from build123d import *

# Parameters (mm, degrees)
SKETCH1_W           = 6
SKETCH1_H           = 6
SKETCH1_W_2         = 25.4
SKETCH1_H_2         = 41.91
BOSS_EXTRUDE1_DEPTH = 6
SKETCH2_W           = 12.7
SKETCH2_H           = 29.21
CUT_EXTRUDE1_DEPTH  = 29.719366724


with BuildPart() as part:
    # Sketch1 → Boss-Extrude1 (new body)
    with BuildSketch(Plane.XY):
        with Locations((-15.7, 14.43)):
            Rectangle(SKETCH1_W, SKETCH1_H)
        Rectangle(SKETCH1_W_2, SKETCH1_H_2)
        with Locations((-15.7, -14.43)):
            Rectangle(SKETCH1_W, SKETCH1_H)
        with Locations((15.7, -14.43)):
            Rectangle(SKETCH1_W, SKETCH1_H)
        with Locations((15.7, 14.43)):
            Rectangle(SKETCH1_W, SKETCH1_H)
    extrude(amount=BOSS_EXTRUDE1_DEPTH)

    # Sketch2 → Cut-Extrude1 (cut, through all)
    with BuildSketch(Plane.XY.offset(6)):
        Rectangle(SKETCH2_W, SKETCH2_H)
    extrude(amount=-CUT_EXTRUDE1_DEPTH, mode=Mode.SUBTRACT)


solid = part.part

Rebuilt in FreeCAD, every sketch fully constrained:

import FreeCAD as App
import Part
import Sketcher

V = App.Vector
Q = App.Units.Quantity

doc = App.newDocument("Part")
params = doc.addObject("Spreadsheet::Sheet", "Params")
for row, (alias, value) in enumerate([
    ("sketch1_width", "1 in"),
    ("sketch1_height", "0.9 in"),
    ("pad1_length", "6 mm"),
    ("sketch2_width", "0.5 in"),
    ("sketch2_height", "1.15 in"),
], start=1):
    params.set(f"A{row}", alias)
    params.set(f"B{row}", "=" + value)
    params.setAlias(f"B{row}", alias)

body = doc.addObject("PartDesign::Body", "Body")

# Sketch on XY plane
sketch1 = body.newObject("Sketcher::SketchObject", "Sketch")
sketch1.AttachmentSupport = (doc.getObject("XY_Plane"), [""])
sketch1.MapMode = "FlatFace"
sketch1.addGeometry(Part.LineSegment(V(-18.7, 17.43, 0), V(-18.7, 11.43, 0)), False)
sketch1.addGeometry(Part.LineSegment(V(-18.7, 11.43, 0), V(-12.7, 11.43, 0)), False)
sketch1.addGeometry(Part.LineSegment(V(-12.7, 11.43, 0), V(-12.7, -11.43, 0)), False)
sketch1.addGeometry(Part.LineSegment(V(-12.7, -11.43, 0), V(-18.7, -11.43, 0)), False)
sketch1.addGeometry(Part.LineSegment(V(-18.7, -11.43, 0), V(-18.7, -17.43, 0)), False)
sketch1.addGeometry(Part.LineSegment(V(-18.7, -17.43, 0), V(-12.7, -17.43, 0)), False)
sketch1.addGeometry(Part.LineSegment(V(-12.7, -17.43, 0), V(-12.7, -20.955, 0)), False)
sketch1.addGeometry(Part.LineSegment(V(-12.7, -20.955, 0), V(12.7, -20.955, 0)), False)
sketch1.addGeometry(Part.LineSegment(V(12.7, -20.955, 0), V(12.7, -17.43, 0)), False)
sketch1.addGeometry(Part.LineSegment(V(12.7, -17.43, 0), V(18.7, -17.43, 0)), False)
sketch1.addGeometry(Part.LineSegment(V(18.7, -17.43, 0), V(18.7, -11.43, 0)), False)
sketch1.addGeometry(Part.LineSegment(V(18.7, -11.43, 0), V(12.7, -11.43, 0)), False)
sketch1.addGeometry(Part.LineSegment(V(12.7, -11.43, 0), V(12.7, 11.43, 0)), False)
sketch1.addGeometry(Part.LineSegment(V(12.7, 11.43, 0), V(18.7, 11.43, 0)), False)
sketch1.addGeometry(Part.LineSegment(V(18.7, 11.43, 0), V(18.7, 17.43, 0)), False)
sketch1.addGeometry(Part.LineSegment(V(18.7, 17.43, 0), V(12.7, 17.43, 0)), False)
sketch1.addGeometry(Part.LineSegment(V(12.7, 17.43, 0), V(12.7, 20.955, 0)), False)
sketch1.addGeometry(Part.LineSegment(V(12.7, 20.955, 0), V(-12.7, 20.955, 0)), False)
sketch1.addGeometry(Part.LineSegment(V(-12.7, 20.955, 0), V(-12.7, 17.43, 0)), False)
sketch1.addGeometry(Part.LineSegment(V(-12.7, 17.43, 0), V(-18.7, 17.43, 0)), False)
sketch1.addConstraint(Sketcher.Constraint("Coincident", 0, 2, 1, 1))
sketch1.addConstraint(Sketcher.Constraint("Coincident", 1, 2, 2, 1))
sketch1.addConstraint(Sketcher.Constraint("Coincident", 2, 2, 3, 1))
sketch1.addConstraint(Sketcher.Constraint("Coincident", 3, 2, 4, 1))
sketch1.addConstraint(Sketcher.Constraint("Coincident", 4, 2, 5, 1))
sketch1.addConstraint(Sketcher.Constraint("Coincident", 5, 2, 6, 1))
sketch1.addConstraint(Sketcher.Constraint("Coincident", 6, 2, 7, 1))
sketch1.addConstraint(Sketcher.Constraint("Coincident", 7, 2, 8, 1))
sketch1.addConstraint(Sketcher.Constraint("Coincident", 8, 2, 9, 1))
sketch1.addConstraint(Sketcher.Constraint("Coincident", 9, 2, 10, 1))
sketch1.addConstraint(Sketcher.Constraint("Coincident", 10, 2, 11, 1))
sketch1.addConstraint(Sketcher.Constraint("Coincident", 11, 2, 12, 1))
sketch1.addConstraint(Sketcher.Constraint("Coincident", 12, 2, 13, 1))
sketch1.addConstraint(Sketcher.Constraint("Coincident", 13, 2, 14, 1))
sketch1.addConstraint(Sketcher.Constraint("Coincident", 14, 2, 15, 1))
sketch1.addConstraint(Sketcher.Constraint("Coincident", 15, 2, 16, 1))
sketch1.addConstraint(Sketcher.Constraint("Coincident", 16, 2, 17, 1))
sketch1.addConstraint(Sketcher.Constraint("Coincident", 17, 2, 18, 1))
sketch1.addConstraint(Sketcher.Constraint("Coincident", 18, 2, 19, 1))
sketch1.addConstraint(Sketcher.Constraint("Coincident", 19, 2, 0, 1))
sketch1.addConstraint(Sketcher.Constraint("Vertical", 0))
sketch1.addConstraint(Sketcher.Constraint("Horizontal", 1))
sketch1.addConstraint(Sketcher.Constraint("Vertical", 2))
sketch1.addConstraint(Sketcher.Constraint("Horizontal", 3))
sketch1.addConstraint(Sketcher.Constraint("Vertical", 4))
sketch1.addConstraint(Sketcher.Constraint("Horizontal", 5))
sketch1.addConstraint(Sketcher.Constraint("Vertical", 6))
sketch1.addConstraint(Sketcher.Constraint("Horizontal", 7))
sketch1.addConstraint(Sketcher.Constraint("Vertical", 8))
sketch1.addConstraint(Sketcher.Constraint("Horizontal", 9))
sketch1.addConstraint(Sketcher.Constraint("Vertical", 10))
sketch1.addConstraint(Sketcher.Constraint("Horizontal", 11))
sketch1.addConstraint(Sketcher.Constraint("Vertical", 12))
sketch1.addConstraint(Sketcher.Constraint("Horizontal", 13))
sketch1.addConstraint(Sketcher.Constraint("Vertical", 14))
sketch1.addConstraint(Sketcher.Constraint("Horizontal", 15))
sketch1.addConstraint(Sketcher.Constraint("Vertical", 16))
sketch1.addConstraint(Sketcher.Constraint("Horizontal", 17))
sketch1.addConstraint(Sketcher.Constraint("Vertical", 18))
sketch1.addConstraint(Sketcher.Constraint("Horizontal", 19))
sketch1.addConstraint(Sketcher.Constraint("Symmetric", 0, 2, 10, 2, -1, 1))
sketch1.addConstraint(Sketcher.Constraint("Symmetric", 2, 2, 12, 2, -1, 1))
sketch1.addConstraint(Sketcher.Constraint("Symmetric", 4, 2, 14, 2, -1, 1))
sketch1.addConstraint(Sketcher.Constraint("Symmetric", 6, 2, 16, 2, -1, 1))
sketch1.addConstraint(Sketcher.Constraint("Symmetric", 8, 2, 18, 2, -1, 1))
sketch1.addConstraint(Sketcher.Constraint("Symmetric", 5, 2, 8, 2, -2))
sketch1.addConstraint(Sketcher.Constraint("Symmetric", 3, 2, 10, 2, -2))
sketch1.addConstraint(Sketcher.Constraint("Vertical", 2, 2, 5, 2))
sketch1.addConstraint(Sketcher.Constraint("Equal", 19, 0))
sketch1.addConstraint(Sketcher.Constraint("DistanceX", 7, 1, 7, 2, Q("1 in")))
sketch1.addConstraint(Sketcher.Constraint("DistanceY", 2, 2, 2, 1, Q("0.9 in")))
sketch1.addConstraint(Sketcher.Constraint("DistanceY", 6, 2, -1, 1, Q("0.825 in")))
sketch1.addConstraint(Sketcher.Constraint("DistanceX", 1, 1, 1, 2, Q("6 mm")))
sketch1.setExpression("Constraints[49]", "Params.sketch1_width")
sketch1.setExpression("Constraints[50]", "Params.sketch1_height")
pad1 = body.newObject("PartDesign::Pad", "Pad")
pad1.Profile = sketch1
pad1.setExpression("Length", "Params.pad1_length")

# Sketch on XY plane
sketch2 = body.newObject("Sketcher::SketchObject", "Sketch001")
sketch2.AttachmentSupport = (doc.getObject("XY_Plane"), [""])
sketch2.MapMode = "FlatFace"
sketch2.AttachmentOffset = App.Placement(V(0, 0, 6), App.Rotation())
sketch2.addGeometry(Part.LineSegment(V(-6.35, 14.605, 0), V(-6.35, -14.605, 0)), False)
sketch2.addGeometry(Part.LineSegment(V(-6.35, -14.605, 0), V(6.35, -14.605, 0)), False)
sketch2.addGeometry(Part.LineSegment(V(6.35, -14.605, 0), V(6.35, 14.605, 0)), False)
sketch2.addGeometry(Part.LineSegment(V(6.35, 14.605, 0), V(-6.35, 14.605, 0)), False)
sketch2.addConstraint(Sketcher.Constraint("Coincident", 0, 2, 1, 1))
sketch2.addConstraint(Sketcher.Constraint("Coincident", 1, 2, 2, 1))
sketch2.addConstraint(Sketcher.Constraint("Coincident", 2, 2, 3, 1))
sketch2.addConstraint(Sketcher.Constraint("Coincident", 3, 2, 0, 1))
sketch2.addConstraint(Sketcher.Constraint("Vertical", 0))
sketch2.addConstraint(Sketcher.Constraint("Horizontal", 1))
sketch2.addConstraint(Sketcher.Constraint("Vertical", 2))
sketch2.addConstraint(Sketcher.Constraint("Horizontal", 3))
sketch2.addConstraint(Sketcher.Constraint("Symmetric", 0, 2, 2, 2, -1, 1))
sketch2.addConstraint(Sketcher.Constraint("DistanceX", 1, 1, 1, 2, Q("0.5 in")))
sketch2.addConstraint(Sketcher.Constraint("DistanceY", 0, 2, 0, 1, Q("1.15 in")))
sketch2.setExpression("Constraints[9]", "Params.sketch2_width")
sketch2.setExpression("Constraints[10]", "Params.sketch2_height")
pocket1 = body.newObject("PartDesign::Pocket", "Pocket")
pocket1.Profile = sketch2
pocket1.Type = "ThroughAll"

doc.recompute()
